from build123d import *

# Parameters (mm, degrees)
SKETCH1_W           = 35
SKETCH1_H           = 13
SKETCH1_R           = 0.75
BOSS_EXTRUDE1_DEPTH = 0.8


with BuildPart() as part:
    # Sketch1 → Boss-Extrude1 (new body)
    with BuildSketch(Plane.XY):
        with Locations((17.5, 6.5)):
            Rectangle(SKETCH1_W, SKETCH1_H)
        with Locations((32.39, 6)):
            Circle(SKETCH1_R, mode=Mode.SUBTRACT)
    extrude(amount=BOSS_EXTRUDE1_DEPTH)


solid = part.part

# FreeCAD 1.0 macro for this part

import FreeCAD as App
import Part
import Sketcher

V = App.Vector
Q = App.Units.Quantity


def add_polygon(sketch, points):
    """Adds a closed chain of lines whose ends are joined by coincident constraints."""
    first, n = sketch.GeometryCount, len(points)
    for a, b in zip(points, points[1:] + points[:1]):
        sketch.addGeometry(Part.LineSegment(App.Vector(*a, 0), App.Vector(*b, 0)), False)
    for i in range(n):
        sketch.addConstraint(Sketcher.Constraint("Coincident", first + i, 2, first + (i + 1) % n, 1))

doc = App.newDocument("Part")
body = doc.addObject("PartDesign::Body", "Body")

sketch1 = body.newObject("Sketcher::SketchObject", "Sketch")
sketch1.AttachmentSupport = (doc.getObject("XY_Plane"), [""])
sketch1.MapMode = "FlatFace"
add_polygon(sketch1, [(0, 13), (0, 0), (35, 0), (35, 13)])
sketch1.addGeometry(Part.Circle(V(32.4, 6, 0), V(0, 0, 1), 0.8), False)
sketch1.addConstraint([
    Sketcher.Constraint("Vertical", 0),
    Sketcher.Constraint("Horizontal", 1),
    Sketcher.Constraint("Vertical", 2),
    Sketcher.Constraint("Horizontal", 3),
    Sketcher.Constraint("Coincident", 0, 2, -1, 1),
    Sketcher.Constraint("Diameter", 4, Q("1.5 mm")),
    Sketcher.Constraint("DistanceX", 1, 1, 1, 2, Q("35 mm")),
    Sketcher.Constraint("DistanceY", 0, 2, 0, 1, Q("13 mm")),
    Sketcher.Constraint("DistanceY", -1, 1, 4, 3, Q("6 mm")),
    Sketcher.Constraint("DistanceX", -1, 1, 4, 3, Q("32.39 mm")),
])
pad1 = body.newObject("PartDesign::Pad", "Pad")
pad1.Profile = sketch1
pad1.Length = 0.8

doc.recompute()
